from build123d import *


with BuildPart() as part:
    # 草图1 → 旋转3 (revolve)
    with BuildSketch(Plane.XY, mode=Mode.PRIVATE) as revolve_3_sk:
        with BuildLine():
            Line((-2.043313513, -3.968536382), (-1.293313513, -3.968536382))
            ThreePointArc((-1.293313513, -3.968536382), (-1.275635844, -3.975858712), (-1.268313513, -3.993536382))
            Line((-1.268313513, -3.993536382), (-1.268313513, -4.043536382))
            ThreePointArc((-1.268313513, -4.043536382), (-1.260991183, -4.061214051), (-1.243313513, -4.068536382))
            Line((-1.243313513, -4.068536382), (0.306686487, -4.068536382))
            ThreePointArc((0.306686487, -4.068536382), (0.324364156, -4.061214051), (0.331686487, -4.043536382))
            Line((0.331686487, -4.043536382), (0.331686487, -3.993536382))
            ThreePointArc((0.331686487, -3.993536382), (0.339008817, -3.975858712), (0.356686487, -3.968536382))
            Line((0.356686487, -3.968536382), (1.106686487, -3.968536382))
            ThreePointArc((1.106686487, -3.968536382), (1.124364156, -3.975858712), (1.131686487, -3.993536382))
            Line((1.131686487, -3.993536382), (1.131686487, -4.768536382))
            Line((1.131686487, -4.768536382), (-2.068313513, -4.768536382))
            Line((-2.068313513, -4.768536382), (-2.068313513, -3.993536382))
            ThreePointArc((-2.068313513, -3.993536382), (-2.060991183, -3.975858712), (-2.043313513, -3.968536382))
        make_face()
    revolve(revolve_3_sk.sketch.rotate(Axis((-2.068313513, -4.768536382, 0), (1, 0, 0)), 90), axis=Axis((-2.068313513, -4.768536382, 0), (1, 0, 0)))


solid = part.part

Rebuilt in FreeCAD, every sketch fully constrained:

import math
import FreeCAD as App
import Part
import Sketcher

V = App.Vector

doc = App.newDocument("Part")
params = doc.addObject("Spreadsheet::Sheet", "Params")
for row, (alias, value) in enumerate([
    ("sketch1_width", "3.2 mm"),
    ("sketch1_width2", "0.75 mm"),
    ("sketch1_height", "0.05 mm"),
    ("revolution_angle", "360 deg"),
], start=1):
    params.set(f"A{row}", alias)
    params.set(f"B{row}", "=" + value)
    params.setAlias(f"B{row}", alias)

body = doc.addObject("PartDesign::Body", "Body")

sketch1 = body.newObject("Sketcher::SketchObject", "Sketch")
sketch1.AttachmentSupport = (doc.getObject("XY_Plane"), [""])
sketch1.MapMode = "FlatFace"
sketch1.addGeometry([
    Part.LineSegment(V(-1.293, -3.969, 0), V(-2.043, -3.969, 0)),
    Part.ArcOfCircle(Part.Circle(V(-2.043, -3.994, 0), V(0, 0, 1), 0.025), math.radians(90), math.radians(180)),
    Part.LineSegment(V(-2.068, -3.994, 0), V(-2.068, -4.769, 0)),
    Part.LineSegment(V(-2.068, -4.769, 0), V(1.132, -4.769, 0)),
    Part.LineSegment(V(1.132, -4.769, 0), V(1.132, -3.994, 0)),
    Part.ArcOfCircle(Part.Circle(V(1.107, -3.994, 0), V(0, 0, 1), 0.025), math.radians(0), math.radians(90)),
    Part.LineSegment(V(1.107, -3.969, 0), V(0.357, -3.969, 0)),
    Part.ArcOfCircle(Part.Circle(V(0.357, -3.994, 0), V(0, 0, 1), 0.025), math.radians(90), math.radians(180)),
    Part.LineSegment(V(0.332, -3.994, 0), V(0.332, -4.044, 0)),
    Part.ArcOfCircle(Part.Circle(V(0.307, -4.044, 0), V(0, 0, 1), 0.025), math.radians(-90), math.radians(0)),
    Part.LineSegment(V(0.307, -4.069, 0), V(-1.243, -4.069, 0)),
    Part.ArcOfCircle(Part.Circle(V(-1.243, -4.044, 0), V(0, 0, 1), 0.025), math.radians(180), math.radians(270)),
    Part.LineSegment(V(-1.268, -4.044, 0), V(-1.268, -3.994, 0)),
    Part.ArcOfCircle(Part.Circle(V(-1.293, -3.994, 0), V(0, 0, 1), 0.025), math.radians(0), math.radians(90)),
], False)
sketch1.addGeometry(Part.LineSegment(V(-2.068, -4.769, 0), V(1.132, -4.769, 0)), True)
sketch1.addConstraint([
    Sketcher.Constraint("Tangent", 0, 2, 1, 1),
    Sketcher.Constraint("Tangent", 1, 2, 2, 1),
    Sketcher.Constraint("Coincident", 2, 2, 3, 1),
    Sketcher.Constraint("Coincident", 3, 2, 4, 1),
    Sketcher.Constraint("Tangent", 4, 2, 5, 1),
    Sketcher.Constraint("Tangent", 5, 2, 6, 1),
    Sketcher.Constraint("Tangent", 6, 2, 7, 1),
    Sketcher.Constraint("Tangent", 7, 2, 8, 1),
    Sketcher.Constraint("Tangent", 8, 2, 9, 2),
    Sketcher.Constraint("Tangent", 9, 1, 10, 1),
    Sketcher.Constraint("Tangent", 10, 2, 11, 2),
    Sketcher.Constraint("Tangent", 11, 1, 12, 1),
    Sketcher.Constraint("Tangent", 12, 2, 13, 1),
    Sketcher.Constraint("Tangent", 13, 2, 0, 1),
    Sketcher.Constraint("Horizontal", 0),
    Sketcher.Constraint("Vertical", 2),
    Sketcher.Constraint("Horizontal", 3),
    Sketcher.Constraint("Vertical", 4),
    Sketcher.Constraint("Horizontal", 6),
    Sketcher.Constraint("Vertical", 8),
    Sketcher.Constraint("Horizontal", 10),
    Sketcher.Constraint("Vertical", 12),
    Sketcher.Constraint("Horizontal", 14),
    Sketcher.Constraint("Coincident", 14, 1, 2, 2),
    Sketcher.Constraint("Equal", 1, 5),
    Sketcher.Constraint("Equal", 5, 7),
    Sketcher.Constraint("Equal", 7, 9),
    Sketcher.Constraint("Equal", 9, 11),
    Sketcher.Constraint("Equal", 11, 13),
    Sketcher.Constraint("Horizontal", 1, 3, 5, 3),
    Sketcher.Constraint("Vertical", 4, 2, 14, 2),
    Sketcher.Constraint("Equal", 0, 6),
    Sketcher.Constraint("DistanceX", 3, 1, 3, 2, 3.2),
    Sketcher.Constraint("Radius", 1, 0.025),
    Sketcher.Constraint("DistanceX", 0, 2, 0, 1, 0.75),
    Sketcher.Constraint("DistanceY", 8, 2, 8, 1, 0.05),
    Sketcher.Constraint("DistanceY", 2, 2, 0, 2, 0.8),
    Sketcher.Constraint("DistanceX", 1, 3, -1, 1, 2.043314),
    Sketcher.Constraint("DistanceY", 1, 3, -1, 1, 3.993536),
])
sketch1.setExpression("Constraints[32]", "Params.sketch1_width")
sketch1.setExpression("Constraints[34]", "Params.sketch1_width2")
sketch1.setExpression("Constraints[35]", "Params.sketch1_height")
revolution = body.newObject("PartDesign::Revolution", "Revolution")
revolution.Profile = sketch1
revolution.ReferenceAxis = (sketch1, ["Axis0"])
revolution.setExpression("Angle", "Params.revolution_angle")

doc.recompute()
